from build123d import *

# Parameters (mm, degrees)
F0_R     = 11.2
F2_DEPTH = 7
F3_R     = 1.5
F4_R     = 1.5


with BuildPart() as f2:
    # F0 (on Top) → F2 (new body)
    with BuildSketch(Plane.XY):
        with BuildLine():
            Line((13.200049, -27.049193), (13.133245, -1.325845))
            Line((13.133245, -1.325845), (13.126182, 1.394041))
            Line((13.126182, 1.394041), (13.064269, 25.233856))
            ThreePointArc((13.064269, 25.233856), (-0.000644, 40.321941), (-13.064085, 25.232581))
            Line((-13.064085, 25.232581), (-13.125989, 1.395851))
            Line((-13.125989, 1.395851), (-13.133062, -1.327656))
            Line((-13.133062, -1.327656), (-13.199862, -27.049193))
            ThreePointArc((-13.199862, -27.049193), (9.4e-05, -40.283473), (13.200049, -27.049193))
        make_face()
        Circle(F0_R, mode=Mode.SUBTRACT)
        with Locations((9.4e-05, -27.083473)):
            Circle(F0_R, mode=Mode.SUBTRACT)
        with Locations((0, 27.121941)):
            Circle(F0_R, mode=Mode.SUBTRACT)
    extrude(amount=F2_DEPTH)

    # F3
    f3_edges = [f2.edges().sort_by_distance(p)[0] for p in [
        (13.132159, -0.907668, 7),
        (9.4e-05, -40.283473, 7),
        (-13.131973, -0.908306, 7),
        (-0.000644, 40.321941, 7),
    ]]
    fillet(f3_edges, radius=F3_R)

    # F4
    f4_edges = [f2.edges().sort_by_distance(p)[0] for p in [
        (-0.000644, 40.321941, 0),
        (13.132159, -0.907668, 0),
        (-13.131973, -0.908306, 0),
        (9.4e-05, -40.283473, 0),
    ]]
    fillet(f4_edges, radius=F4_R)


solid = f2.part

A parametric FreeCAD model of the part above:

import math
import FreeCAD as App
import Part
import Sketcher
from FreeCAD import Vector
Q = App.Units.Quantity


def edges_at(feature, points):
    """Names of the edges that pass closest to the given points."""
    edges = feature.Shape.Edges
    near = lambda p: min(range(len(edges)), key=lambda i: edges[i].distToShape(Part.Vertex(*p))[0])
    return sorted({f"Edge{near(p) + 1}" for p in points})

doc = App.newDocument("Part")
body = doc.addObject("PartDesign::Body", "Body")

# Sketch on XY plane
sketch1 = doc.addObject("Sketcher::SketchObject", "Sketch")
body.addObject(sketch1)
sketch1.AttachmentSupport = (doc.XY_Plane, [""])
sketch1.MapMode = "FlatFace"
sketch1.addGeometry([
    Part.LineSegment(Vector(13.200049, -27.049193, 0), Vector(13.133245, -1.325845, 0)),  # 0
    Part.LineSegment(Vector(13.133245, -1.325845, 0), Vector(13.126182, 1.394041, 0)),  # 1
    Part.LineSegment(Vector(13.126182, 1.394041, 0), Vector(13.064269, 25.233856, 0)),  # 2
    Part.ArcOfCircle(Part.Circle(Vector(0, 27.121941, 0), Vector(0, 0, 1), 13.2), math.radians(-8.223609), math.radians(188.229201)),  # 3
    Part.LineSegment(Vector(-13.064085, 25.232581, 0), Vector(-13.125989, 1.395851, 0)),  # 4
    Part.LineSegment(Vector(-13.125989, 1.395851, 0), Vector(-13.133062, -1.327656, 0)),  # 5
    Part.LineSegment(Vector(-13.133062, -1.327656, 0), Vector(-13.199862, -27.049193, 0)),  # 6
    Part.ArcOfCircle(Part.Circle(Vector(0.000093, -27.083473, 0), Vector(0, 0, 1), 13.2), math.radians(179.851204), math.radians(360.148796)),  # 7
    Part.Circle(Vector(0, 0, 0), Vector(0, 0, 1), 11.2),  # 8
    Part.Circle(Vector(0.000094, -27.083473, 0), Vector(0, 0, 1), 11.2),  # 9
    Part.Circle(Vector(0, 27.121941, 0), Vector(0, 0, 1), 11.2),  # 10
], False)
sketch1.addConstraint([
    Sketcher.Constraint("Coincident", 0, 2, 1, 1),
    Sketcher.Constraint("Coincident", 1, 2, 2, 1),
    Sketcher.Constraint("Coincident", 2, 2, 3, 1),
    Sketcher.Constraint("Coincident", 3, 2, 4, 1),
    Sketcher.Constraint("Coincident", 4, 2, 5, 1),
    Sketcher.Constraint("Coincident", 5, 2, 6, 1),
    Sketcher.Constraint("Coincident", 6, 2, 7, 1),
    Sketcher.Constraint("Coincident", 7, 2, 0, 1),
    Sketcher.Constraint("Coincident", 8, 3, -1, 1),
    Sketcher.Constraint("Coincident", 9, 3, 7, 3),
    Sketcher.Constraint("Coincident", 10, 3, 3, 3),
    Sketcher.Constraint("PointOnObject", 3, 3, -2),
    Sketcher.Constraint("Diameter", 8, Q("22.4 mm")),
    Sketcher.Constraint("Diameter", 9, Q("22.4 mm")),
    Sketcher.Constraint("Diameter", 10, Q("22.4 mm")),
    Sketcher.Constraint("Radius", 3, Q("13.2 mm")),
    Sketcher.Constraint("Radius", 7, Q("13.2 mm")),
    Sketcher.Constraint("DistanceY", 1, 2, 10, 3, Q("25.7279 mm")),
    Sketcher.Constraint("DistanceY", 0, 2, 2, 2, Q("26.559701 mm")),
    Sketcher.Constraint("DistanceX", 6, 2, 5, 2, Q("0.0668 mm")),
    Sketcher.Constraint("Distance", 4, Q("23.83681 mm")),
    Sketcher.Constraint("DistanceY", -1, 1, 3, 3, Q("27.121941 mm")),
    Sketcher.Constraint("DistanceX", -1, 1, 2, 2, Q("13.064269 mm")),
    Sketcher.Constraint("DistanceY", -1, 1, 3, 2, Q("25.232581 mm")),
    Sketcher.Constraint("DistanceX", 4, 2, -1, 1, Q("13.125989 mm")),
    Sketcher.Constraint("DistanceX", -1, 1, 7, 2, Q("13.200049 mm")),
    Sketcher.Constraint("DistanceX", 9, 3, 0, 2, Q("13.133151 mm")),
    Sketcher.Constraint("DistanceY", 9, 3, 0, 2, Q("25.757628 mm")),
    Sketcher.Constraint("DistanceX", 4, 2, 1, 2, Q("26.252171 mm")),
    Sketcher.Constraint("DistanceY", 5, 2, 0, 2, Q("0.001811 mm")),
    Sketcher.Constraint("DistanceY", 7, 3, 6, 2, Q("0.03428 mm")),
    Sketcher.Constraint("DistanceY", 9, 3, 7, 2, Q("0.03428 mm")),
])
pad1 = doc.addObject("PartDesign::Pad", "Pad")
body.addObject(pad1)
pad1.Profile = sketch1
pad1.Length = 7
doc.recompute()

fillet = doc.addObject("PartDesign::Fillet", "Fillet")
body.addObject(fillet)
fillet.Base = (pad1, edges_at(pad1, [
    (13.13, 0.034, 7),
    (0, -40.283, 7),
    (-13.13, 0.034, 7),
    (-0.001, 40.322, 7),
]))
fillet.Radius = 1.5
doc.recompute()

fillet2 = doc.addObject("PartDesign::Fillet", "Fillet001")
body.addObject(fillet2)
fillet2.Base = (fillet, edges_at(fillet, [
    (-0.001, 40.322, 0),
    (13.13, 0.034, 0),
    (-13.13, 0.034, 0),
    (0, -40.283, 0),
]))
fillet2.Radius = 1.5

doc.recompute()
